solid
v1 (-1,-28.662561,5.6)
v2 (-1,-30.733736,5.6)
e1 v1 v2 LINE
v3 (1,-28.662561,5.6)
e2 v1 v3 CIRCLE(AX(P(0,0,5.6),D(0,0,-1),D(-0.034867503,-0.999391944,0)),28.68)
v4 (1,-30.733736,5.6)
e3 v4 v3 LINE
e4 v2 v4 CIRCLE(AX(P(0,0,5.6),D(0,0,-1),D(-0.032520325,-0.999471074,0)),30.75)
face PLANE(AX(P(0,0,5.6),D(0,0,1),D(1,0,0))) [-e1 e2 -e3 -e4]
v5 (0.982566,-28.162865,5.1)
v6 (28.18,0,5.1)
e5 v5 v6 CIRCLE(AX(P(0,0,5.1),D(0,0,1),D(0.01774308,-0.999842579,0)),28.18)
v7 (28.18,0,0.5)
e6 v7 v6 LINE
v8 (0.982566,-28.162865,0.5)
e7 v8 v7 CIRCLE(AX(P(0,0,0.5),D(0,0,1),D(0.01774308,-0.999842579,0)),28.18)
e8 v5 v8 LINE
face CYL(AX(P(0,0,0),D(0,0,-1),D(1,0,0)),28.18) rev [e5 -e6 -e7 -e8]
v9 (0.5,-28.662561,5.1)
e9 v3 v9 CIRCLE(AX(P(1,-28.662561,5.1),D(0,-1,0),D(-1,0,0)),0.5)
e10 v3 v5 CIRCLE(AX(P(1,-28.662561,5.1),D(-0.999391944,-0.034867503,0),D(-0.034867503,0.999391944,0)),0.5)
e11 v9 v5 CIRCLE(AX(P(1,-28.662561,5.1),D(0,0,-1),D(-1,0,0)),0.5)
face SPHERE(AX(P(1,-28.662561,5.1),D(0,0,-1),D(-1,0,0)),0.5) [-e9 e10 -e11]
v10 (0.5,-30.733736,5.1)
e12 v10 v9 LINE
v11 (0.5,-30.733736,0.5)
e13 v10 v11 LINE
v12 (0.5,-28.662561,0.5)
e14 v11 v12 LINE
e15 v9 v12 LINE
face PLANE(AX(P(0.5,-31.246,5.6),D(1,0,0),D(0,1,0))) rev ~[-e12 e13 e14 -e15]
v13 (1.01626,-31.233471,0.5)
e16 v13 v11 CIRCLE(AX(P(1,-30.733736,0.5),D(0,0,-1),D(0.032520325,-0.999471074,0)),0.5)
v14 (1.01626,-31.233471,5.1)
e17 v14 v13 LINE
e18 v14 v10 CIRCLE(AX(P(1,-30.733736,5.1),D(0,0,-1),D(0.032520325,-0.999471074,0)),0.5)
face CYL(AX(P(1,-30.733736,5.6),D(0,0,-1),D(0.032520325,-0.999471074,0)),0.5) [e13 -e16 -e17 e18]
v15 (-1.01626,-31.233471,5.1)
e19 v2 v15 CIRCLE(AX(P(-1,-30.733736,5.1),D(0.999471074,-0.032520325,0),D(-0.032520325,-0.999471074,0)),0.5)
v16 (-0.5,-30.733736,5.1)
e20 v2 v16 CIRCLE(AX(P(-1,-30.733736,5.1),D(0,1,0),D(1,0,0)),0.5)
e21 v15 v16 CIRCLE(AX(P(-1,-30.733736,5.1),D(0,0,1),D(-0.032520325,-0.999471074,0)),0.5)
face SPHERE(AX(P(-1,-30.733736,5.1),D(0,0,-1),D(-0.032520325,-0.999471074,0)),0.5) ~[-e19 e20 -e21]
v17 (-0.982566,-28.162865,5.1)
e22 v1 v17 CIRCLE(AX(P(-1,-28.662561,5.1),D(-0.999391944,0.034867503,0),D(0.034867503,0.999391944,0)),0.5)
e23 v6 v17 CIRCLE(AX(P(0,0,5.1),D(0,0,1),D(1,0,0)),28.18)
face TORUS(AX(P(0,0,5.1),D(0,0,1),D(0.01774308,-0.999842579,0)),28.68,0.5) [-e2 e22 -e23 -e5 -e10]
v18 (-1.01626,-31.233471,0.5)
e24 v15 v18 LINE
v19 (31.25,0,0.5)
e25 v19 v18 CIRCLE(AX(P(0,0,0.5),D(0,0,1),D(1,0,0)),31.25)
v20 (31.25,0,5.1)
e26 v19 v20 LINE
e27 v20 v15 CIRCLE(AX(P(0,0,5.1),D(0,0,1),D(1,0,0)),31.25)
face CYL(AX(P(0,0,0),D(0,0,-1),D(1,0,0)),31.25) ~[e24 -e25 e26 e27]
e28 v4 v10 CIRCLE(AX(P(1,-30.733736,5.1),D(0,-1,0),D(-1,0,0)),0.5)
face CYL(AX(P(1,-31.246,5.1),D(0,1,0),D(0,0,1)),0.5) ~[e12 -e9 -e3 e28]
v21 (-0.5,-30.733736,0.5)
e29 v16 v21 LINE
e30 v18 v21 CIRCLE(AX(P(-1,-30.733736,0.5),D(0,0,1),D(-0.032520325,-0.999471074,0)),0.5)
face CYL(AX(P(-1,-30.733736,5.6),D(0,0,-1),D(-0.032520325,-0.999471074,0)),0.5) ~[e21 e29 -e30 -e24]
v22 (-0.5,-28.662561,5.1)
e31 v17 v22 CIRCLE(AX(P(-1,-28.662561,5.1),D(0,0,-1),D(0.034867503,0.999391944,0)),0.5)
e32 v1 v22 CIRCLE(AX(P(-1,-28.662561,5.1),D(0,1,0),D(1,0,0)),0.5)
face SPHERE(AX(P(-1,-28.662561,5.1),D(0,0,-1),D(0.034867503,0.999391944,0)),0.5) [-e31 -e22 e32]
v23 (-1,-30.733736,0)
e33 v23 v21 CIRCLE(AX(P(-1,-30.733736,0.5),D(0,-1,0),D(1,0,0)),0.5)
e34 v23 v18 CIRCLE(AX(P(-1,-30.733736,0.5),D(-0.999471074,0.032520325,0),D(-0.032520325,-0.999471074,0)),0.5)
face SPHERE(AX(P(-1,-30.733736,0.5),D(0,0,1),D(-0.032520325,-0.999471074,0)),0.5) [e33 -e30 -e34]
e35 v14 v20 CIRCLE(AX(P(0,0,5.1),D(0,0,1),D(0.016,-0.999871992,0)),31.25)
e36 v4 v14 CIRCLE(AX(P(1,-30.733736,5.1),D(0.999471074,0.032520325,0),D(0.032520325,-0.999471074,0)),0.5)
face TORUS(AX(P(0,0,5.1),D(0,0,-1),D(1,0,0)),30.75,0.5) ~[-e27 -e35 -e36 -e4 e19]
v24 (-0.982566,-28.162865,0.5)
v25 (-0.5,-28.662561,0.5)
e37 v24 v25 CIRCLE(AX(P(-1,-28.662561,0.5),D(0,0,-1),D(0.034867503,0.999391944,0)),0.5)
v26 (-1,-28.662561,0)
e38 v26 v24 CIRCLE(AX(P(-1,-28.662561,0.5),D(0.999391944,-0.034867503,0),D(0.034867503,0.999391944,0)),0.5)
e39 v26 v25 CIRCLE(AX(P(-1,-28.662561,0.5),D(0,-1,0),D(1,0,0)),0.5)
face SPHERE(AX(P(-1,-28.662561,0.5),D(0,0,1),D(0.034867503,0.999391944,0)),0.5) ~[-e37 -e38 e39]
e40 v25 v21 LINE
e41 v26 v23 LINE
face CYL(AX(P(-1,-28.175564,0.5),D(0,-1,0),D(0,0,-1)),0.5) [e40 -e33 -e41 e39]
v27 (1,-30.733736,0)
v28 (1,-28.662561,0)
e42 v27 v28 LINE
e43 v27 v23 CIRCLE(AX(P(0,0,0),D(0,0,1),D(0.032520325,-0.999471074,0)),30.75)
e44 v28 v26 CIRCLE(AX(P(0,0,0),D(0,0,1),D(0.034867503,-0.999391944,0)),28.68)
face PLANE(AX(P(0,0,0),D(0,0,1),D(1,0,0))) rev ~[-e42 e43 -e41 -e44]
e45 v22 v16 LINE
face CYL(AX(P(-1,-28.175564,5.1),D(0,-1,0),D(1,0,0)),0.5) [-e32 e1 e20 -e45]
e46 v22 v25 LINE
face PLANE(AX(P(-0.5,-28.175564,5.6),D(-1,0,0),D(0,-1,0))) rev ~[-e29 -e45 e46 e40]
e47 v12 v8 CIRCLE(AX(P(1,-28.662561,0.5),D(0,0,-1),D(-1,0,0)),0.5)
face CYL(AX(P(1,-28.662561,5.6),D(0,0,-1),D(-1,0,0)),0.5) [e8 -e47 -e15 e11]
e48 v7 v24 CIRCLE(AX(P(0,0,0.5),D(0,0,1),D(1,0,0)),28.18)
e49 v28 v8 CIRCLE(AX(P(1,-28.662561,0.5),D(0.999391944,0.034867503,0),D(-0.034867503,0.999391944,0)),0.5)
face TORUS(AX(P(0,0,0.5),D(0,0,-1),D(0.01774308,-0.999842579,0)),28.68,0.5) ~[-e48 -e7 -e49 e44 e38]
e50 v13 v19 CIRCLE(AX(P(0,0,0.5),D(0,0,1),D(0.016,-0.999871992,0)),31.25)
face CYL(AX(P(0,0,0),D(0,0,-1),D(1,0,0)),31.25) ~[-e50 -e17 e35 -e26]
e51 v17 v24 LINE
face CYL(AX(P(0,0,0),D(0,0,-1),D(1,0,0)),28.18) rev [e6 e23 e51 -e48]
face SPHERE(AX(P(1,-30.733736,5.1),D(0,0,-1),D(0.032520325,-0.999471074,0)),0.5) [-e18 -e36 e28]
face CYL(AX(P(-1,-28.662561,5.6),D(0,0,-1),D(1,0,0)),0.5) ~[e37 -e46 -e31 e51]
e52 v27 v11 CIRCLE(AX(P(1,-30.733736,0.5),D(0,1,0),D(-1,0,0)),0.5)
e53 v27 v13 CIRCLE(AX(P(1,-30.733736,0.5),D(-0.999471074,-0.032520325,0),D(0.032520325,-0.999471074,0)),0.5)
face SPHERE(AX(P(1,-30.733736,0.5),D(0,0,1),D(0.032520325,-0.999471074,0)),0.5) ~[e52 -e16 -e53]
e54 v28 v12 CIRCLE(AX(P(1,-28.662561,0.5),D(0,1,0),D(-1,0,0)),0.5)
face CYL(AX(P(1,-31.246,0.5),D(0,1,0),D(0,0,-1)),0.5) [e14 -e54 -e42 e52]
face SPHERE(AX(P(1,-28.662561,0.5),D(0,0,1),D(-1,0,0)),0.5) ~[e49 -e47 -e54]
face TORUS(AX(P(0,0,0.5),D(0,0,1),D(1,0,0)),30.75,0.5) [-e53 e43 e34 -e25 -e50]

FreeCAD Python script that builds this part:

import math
import FreeCAD as App
import Part
import Sketcher

V = App.Vector

doc = App.newDocument("Part")
params = doc.addObject("Spreadsheet::Sheet", "Params")
for row, (alias, value) in enumerate([
    ("sketch1_diameter", "62.5 mm"),
    ("sketch1_diameter2", "56.36 mm"),
    ("pad1_length", "5.6 mm"),
    ("sketch2_radius", "28.18 mm"),
    ("sketch2_radius2", "31.25 mm"),
    ("pocket1_length", "25 mm"),
    ("fillet_radius", "0.5 mm"),
], start=1):
    params.set(f"A{row}", alias)
    params.set(f"B{row}", "=" + value)
    params.setAlias(f"B{row}", alias)

body = doc.addObject("PartDesign::Body", "Body")

# Sketch on XY plane
sketch1 = body.newObject("Sketcher::SketchObject", "Sketch")
sketch1.AttachmentSupport = (doc.getObject("XY_Plane"), [""])
sketch1.MapMode = "FlatFace"
sketch1.addGeometry([
    Part.Circle(V(0, 0, 0), V(0, 0, 1), 31),
    Part.Circle(V(0, 0, 0), V(0, 0, 1), 28),
], False)
sketch1.addConstraint([
    Sketcher.Constraint("Coincident", 0, 3, -1, 1),
    Sketcher.Constraint("Coincident", 1, 3, -1, 1),
    Sketcher.Constraint("Diameter", 0, 62.5),
    Sketcher.Constraint("Diameter", 1, 56.36),
])
sketch1.setExpression("Constraints[2]", "Params.sketch1_diameter")
sketch1.setExpression("Constraints[3]", "Params.sketch1_diameter2")
pad1 = body.newObject("PartDesign::Pad", "Pad")
pad1.Profile = sketch1
pad1.setExpression("Length", "Params.pad1_length")

# Sketch on XY plane
sketch2 = body.newObject("Sketcher::SketchObject", "Sketch001")
sketch2.AttachmentSupport = (doc.getObject("XY_Plane"), [""])
sketch2.MapMode = "FlatFace"
sketch2.AttachmentOffset = App.Placement(V(0, 0, 5.6), App.Rotation())
sketch2.addGeometry([
    Part.ArcOfCircle(Part.Circle(V(0, 0, 0), V(0, 0, 1), 28.2), math.radians(-91.02), math.radians(-88.98)),
    Part.LineSegment(V(-0.5, -28.2, 0), V(-0.5, -31.2, 0)),
    Part.ArcOfCircle(Part.Circle(V(0, 0, 0), V(0, 0, 1), 31.3), math.radians(-90.92), math.radians(-89.08)),
    Part.LineSegment(V(0.5, -31.2, 0), V(0.5, -28.2, 0)),
], False)
sketch2.addConstraint([
    Sketcher.Constraint("Coincident", 0, 1, 1, 1),
    Sketcher.Constraint("Coincident", 1, 2, 2, 1),
    Sketcher.Constraint("Coincident", 2, 2, 3, 1),
    Sketcher.Constraint("Coincident", 3, 2, 0, 2),
    Sketcher.Constraint("Vertical", 1),
    Sketcher.Constraint("Vertical", 3),
    Sketcher.Constraint("Coincident", 0, 3, -1, 1),
    Sketcher.Constraint("Coincident", 2, 3, -1, 1),
    Sketcher.Constraint("Horizontal", 1, 2, 2, 2),
    Sketcher.Constraint("Radius", 0, 28.18),
    Sketcher.Constraint("Radius", 2, 31.25),
    Sketcher.Constraint("DistanceX", 1, 2, 2, 2, 1.0),
])
sketch2.setExpression("Constraints[9]", "Params.sketch2_radius")
sketch2.setExpression("Constraints[10]", "Params.sketch2_radius2")
pocket1 = body.newObject("PartDesign::Pocket", "Pocket")
pocket1.Profile = sketch2
pocket1.setExpression("Length", "Params.pocket1_length")
doc.recompute()

fillet = body.newObject("PartDesign::Fillet", "Fillet")
fillet.Base = (pocket1, ["Edge1"])
fillet.UseAllEdges = True
fillet.setExpression("Radius", "Params.fillet_radius")

doc.recompute()
